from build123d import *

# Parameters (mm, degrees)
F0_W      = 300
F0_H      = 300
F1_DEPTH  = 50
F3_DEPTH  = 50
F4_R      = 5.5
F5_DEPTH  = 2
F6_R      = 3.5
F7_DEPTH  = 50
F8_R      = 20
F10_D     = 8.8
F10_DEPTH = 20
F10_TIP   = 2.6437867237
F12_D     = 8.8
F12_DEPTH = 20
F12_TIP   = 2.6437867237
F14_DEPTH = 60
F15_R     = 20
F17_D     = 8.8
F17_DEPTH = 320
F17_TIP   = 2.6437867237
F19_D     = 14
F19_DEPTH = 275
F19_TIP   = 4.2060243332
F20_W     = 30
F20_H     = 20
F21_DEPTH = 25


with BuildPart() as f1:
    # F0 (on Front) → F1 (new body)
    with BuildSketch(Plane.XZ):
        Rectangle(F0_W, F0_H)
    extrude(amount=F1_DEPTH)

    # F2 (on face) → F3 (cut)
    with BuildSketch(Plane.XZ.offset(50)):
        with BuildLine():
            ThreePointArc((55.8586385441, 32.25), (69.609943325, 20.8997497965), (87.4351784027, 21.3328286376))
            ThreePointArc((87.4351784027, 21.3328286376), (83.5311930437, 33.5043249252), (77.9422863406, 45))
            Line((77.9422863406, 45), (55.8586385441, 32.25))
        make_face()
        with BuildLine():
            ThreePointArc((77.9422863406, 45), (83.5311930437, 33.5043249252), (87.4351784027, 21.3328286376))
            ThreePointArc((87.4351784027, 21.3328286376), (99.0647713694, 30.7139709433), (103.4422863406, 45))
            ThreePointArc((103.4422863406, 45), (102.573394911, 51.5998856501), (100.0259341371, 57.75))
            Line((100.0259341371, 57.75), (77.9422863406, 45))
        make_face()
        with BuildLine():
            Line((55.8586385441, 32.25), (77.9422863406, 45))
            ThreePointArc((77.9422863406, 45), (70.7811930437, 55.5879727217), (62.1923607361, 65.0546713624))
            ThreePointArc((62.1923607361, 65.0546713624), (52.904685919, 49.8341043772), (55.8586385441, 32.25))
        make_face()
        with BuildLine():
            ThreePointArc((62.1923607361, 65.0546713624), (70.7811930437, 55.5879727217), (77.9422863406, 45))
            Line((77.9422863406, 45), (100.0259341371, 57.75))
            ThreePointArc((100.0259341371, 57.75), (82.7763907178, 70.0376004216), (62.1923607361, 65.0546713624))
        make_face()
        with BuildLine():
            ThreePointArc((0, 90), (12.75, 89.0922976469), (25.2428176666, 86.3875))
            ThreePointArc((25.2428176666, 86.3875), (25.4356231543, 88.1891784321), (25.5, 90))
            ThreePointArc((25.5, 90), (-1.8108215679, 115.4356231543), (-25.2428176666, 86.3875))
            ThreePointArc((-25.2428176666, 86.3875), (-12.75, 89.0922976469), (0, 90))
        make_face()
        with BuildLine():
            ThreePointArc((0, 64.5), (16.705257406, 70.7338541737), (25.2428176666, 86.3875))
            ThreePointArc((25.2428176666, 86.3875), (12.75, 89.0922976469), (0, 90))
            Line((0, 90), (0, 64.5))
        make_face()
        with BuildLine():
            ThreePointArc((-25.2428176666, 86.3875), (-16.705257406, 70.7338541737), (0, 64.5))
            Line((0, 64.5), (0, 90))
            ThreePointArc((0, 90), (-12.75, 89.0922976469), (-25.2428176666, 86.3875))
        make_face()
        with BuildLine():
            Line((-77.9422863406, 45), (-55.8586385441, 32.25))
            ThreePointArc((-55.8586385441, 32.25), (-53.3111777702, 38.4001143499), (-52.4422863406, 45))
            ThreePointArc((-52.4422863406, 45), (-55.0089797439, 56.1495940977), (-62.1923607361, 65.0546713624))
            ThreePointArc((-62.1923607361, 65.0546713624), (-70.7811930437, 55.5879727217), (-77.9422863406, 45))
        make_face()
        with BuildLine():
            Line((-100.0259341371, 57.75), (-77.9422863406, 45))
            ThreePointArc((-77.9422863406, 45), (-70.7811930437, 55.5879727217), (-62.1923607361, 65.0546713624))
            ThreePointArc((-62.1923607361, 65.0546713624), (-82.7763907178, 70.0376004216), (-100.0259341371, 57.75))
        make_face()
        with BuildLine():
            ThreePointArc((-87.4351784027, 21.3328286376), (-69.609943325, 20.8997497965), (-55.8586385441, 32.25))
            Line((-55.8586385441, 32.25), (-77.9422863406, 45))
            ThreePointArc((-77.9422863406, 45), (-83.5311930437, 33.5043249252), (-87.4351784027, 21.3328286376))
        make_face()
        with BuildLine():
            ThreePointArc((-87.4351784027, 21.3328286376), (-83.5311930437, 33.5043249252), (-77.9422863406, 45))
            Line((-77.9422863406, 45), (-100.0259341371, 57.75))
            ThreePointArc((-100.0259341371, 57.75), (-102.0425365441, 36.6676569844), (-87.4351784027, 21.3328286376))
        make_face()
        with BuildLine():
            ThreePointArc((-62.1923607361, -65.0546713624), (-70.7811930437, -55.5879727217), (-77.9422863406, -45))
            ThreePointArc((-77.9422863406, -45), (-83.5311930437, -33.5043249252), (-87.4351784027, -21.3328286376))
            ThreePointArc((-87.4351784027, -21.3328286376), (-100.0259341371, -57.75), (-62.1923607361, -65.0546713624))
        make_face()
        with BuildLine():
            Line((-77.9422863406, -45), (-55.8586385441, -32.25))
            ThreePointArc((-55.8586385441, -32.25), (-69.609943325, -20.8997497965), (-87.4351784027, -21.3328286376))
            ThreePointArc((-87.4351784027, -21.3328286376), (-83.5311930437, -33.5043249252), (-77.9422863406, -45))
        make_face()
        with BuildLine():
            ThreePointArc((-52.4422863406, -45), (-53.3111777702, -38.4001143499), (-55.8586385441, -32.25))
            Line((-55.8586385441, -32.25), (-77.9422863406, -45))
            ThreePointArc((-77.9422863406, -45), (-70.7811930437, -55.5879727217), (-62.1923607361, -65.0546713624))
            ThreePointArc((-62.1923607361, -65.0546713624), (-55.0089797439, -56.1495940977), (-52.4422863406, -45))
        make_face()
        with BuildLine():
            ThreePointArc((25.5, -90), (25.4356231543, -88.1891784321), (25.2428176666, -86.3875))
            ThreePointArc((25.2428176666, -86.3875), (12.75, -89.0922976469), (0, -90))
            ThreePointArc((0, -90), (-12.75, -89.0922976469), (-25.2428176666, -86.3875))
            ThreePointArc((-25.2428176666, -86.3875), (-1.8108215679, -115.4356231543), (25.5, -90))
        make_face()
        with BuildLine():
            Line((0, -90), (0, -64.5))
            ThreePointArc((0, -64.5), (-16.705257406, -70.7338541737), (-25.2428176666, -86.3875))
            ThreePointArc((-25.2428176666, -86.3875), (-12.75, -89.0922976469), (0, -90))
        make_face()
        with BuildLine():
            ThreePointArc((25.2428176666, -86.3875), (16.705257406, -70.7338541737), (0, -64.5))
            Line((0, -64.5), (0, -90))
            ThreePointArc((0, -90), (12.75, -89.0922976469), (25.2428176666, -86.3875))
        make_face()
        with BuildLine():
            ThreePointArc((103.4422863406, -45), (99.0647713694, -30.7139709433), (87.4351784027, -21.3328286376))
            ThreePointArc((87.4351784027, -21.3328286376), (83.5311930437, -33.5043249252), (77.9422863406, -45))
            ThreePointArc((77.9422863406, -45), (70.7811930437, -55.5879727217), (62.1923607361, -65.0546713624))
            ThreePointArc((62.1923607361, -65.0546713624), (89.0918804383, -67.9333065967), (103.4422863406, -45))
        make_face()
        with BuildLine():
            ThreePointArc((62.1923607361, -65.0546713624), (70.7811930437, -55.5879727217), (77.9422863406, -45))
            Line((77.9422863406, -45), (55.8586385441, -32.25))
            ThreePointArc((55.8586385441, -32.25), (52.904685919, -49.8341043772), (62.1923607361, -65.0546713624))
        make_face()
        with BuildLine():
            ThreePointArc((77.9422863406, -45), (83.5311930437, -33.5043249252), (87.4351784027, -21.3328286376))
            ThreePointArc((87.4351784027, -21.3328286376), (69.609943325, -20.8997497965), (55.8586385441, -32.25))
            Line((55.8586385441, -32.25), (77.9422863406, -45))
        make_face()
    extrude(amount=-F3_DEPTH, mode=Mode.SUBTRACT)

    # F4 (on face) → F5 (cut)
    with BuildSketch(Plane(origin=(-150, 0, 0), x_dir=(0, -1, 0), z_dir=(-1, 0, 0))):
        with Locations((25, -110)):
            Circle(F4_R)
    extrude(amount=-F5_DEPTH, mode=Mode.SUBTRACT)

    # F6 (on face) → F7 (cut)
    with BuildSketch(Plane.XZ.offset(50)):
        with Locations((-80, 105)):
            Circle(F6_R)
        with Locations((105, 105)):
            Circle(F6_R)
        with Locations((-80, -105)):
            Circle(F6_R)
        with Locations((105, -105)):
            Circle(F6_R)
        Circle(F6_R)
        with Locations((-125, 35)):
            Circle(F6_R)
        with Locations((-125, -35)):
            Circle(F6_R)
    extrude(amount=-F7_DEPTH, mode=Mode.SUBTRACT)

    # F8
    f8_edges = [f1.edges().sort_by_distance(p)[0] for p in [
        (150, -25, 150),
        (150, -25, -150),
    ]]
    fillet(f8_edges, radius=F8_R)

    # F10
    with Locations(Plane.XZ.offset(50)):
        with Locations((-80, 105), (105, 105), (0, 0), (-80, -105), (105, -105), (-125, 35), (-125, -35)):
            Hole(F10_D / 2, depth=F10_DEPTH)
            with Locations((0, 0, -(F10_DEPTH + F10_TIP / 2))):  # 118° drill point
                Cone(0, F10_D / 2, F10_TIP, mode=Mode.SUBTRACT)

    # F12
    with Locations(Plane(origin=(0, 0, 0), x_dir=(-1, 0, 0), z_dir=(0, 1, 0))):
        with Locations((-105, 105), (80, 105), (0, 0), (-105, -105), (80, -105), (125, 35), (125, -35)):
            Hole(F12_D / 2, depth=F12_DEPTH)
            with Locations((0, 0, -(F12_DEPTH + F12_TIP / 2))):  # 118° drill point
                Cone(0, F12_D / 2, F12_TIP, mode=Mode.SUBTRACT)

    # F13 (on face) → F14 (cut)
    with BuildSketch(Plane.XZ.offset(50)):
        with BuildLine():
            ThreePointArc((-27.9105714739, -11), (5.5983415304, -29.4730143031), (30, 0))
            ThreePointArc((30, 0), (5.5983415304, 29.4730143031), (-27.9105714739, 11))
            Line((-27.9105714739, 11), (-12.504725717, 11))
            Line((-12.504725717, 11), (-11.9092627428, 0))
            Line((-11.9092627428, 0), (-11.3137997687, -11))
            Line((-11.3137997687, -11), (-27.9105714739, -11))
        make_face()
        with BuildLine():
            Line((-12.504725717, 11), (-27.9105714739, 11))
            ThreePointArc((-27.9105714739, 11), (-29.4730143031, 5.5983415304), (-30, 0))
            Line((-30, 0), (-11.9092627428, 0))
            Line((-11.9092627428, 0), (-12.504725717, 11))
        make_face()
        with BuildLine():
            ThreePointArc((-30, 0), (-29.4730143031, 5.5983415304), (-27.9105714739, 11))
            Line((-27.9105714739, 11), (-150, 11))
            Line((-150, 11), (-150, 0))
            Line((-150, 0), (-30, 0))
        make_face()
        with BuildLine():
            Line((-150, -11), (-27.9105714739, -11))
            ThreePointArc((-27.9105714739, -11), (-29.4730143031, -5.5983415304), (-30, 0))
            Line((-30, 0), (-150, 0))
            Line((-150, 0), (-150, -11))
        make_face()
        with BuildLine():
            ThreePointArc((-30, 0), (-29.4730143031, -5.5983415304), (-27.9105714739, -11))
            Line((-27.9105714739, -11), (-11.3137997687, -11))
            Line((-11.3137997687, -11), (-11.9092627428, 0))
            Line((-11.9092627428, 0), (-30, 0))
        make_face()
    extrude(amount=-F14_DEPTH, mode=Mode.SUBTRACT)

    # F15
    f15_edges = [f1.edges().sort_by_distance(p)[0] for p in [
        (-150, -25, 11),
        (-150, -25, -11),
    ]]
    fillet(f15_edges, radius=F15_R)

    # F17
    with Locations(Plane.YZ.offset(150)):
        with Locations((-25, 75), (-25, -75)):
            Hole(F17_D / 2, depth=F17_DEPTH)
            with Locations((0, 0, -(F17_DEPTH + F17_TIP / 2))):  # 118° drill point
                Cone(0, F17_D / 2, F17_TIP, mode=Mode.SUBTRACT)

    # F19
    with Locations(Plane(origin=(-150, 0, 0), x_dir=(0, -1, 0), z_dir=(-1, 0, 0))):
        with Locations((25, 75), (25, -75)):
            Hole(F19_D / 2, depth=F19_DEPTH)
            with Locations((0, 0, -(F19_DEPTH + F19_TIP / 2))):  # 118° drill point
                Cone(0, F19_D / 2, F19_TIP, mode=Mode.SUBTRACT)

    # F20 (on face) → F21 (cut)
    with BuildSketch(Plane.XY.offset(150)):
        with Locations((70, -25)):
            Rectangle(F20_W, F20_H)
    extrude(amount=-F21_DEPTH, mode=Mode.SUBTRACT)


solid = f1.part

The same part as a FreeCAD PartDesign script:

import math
import FreeCAD as App
import Part
import Sketcher


def edges_at(feature, points):
    """Names of the edges that pass closest to the given points."""
    edges = feature.Shape.Edges
    near = lambda p: min(range(len(edges)), key=lambda i: edges[i].distToShape(Part.Vertex(*p))[0])
    return sorted({f"Edge{near(p) + 1}" for p in points})

doc = App.newDocument("Part")
body = doc.addObject("PartDesign::Body", "Body")

sketch1 = body.newObject("Sketcher::SketchObject", "Sketch")
sketch1.AttachmentSupport = (doc.getObject("XZ_Plane"), [""])
sketch1.MapMode = "FlatFace"
sketch1.addGeometry(Part.LineSegment(App.Vector(-150, 150, 0), App.Vector(-150, -150, 0)), False)
sketch1.addGeometry(Part.LineSegment(App.Vector(-150, -150, 0), App.Vector(150, -150, 0)), False)
sketch1.addGeometry(Part.LineSegment(App.Vector(150, -150, 0), App.Vector(150, 150, 0)), False)
sketch1.addGeometry(Part.LineSegment(App.Vector(150, 150, 0), App.Vector(-150, 150, 0)), False)
sketch1.addConstraint(Sketcher.Constraint("Coincident", 0, 2, 1, 1))
sketch1.addConstraint(Sketcher.Constraint("Coincident", 1, 2, 2, 1))
sketch1.addConstraint(Sketcher.Constraint("Coincident", 2, 2, 3, 1))
sketch1.addConstraint(Sketcher.Constraint("Coincident", 3, 2, 0, 1))
sketch1.addConstraint(Sketcher.Constraint("Vertical", 0))
sketch1.addConstraint(Sketcher.Constraint("Horizontal", 1))
sketch1.addConstraint(Sketcher.Constraint("Vertical", 2))
sketch1.addConstraint(Sketcher.Constraint("Horizontal", 3))
sketch1.addConstraint(Sketcher.Constraint("Symmetric", 0, 2, 2, 2, -1, 1))
sketch1.addConstraint(Sketcher.Constraint("Equal", 3, 0))
sketch1.addConstraint(Sketcher.Constraint("DistanceX", 1, 1, 1, 2, 300.0))
pad1 = body.newObject("PartDesign::Pad", "Pad")
pad1.Profile = sketch1
pad1.Length = 50

sketch2 = body.newObject("Sketcher::SketchObject", "Sketch001")
sketch2.AttachmentSupport = (doc.getObject("XZ_Plane"), [""])
sketch2.MapMode = "FlatFace"
sketch2.AttachmentOffset = App.Placement(App.Vector(0, 0, 50), App.Rotation())
sketch2.addGeometry(Part.ArcOfCircle(Part.Circle(App.Vector(77.9, 45, 0), App.Vector(0, 0, 1), 25.5), math.radians(-150), math.radians(-68)), False)
sketch2.addGeometry(Part.ArcOfCircle(Part.Circle(App.Vector(77.9, 45, 0), App.Vector(0, 0, 1), 25.5), math.radians(-68), math.radians(0)), False)
sketch2.addGeometry(Part.ArcOfCircle(Part.Circle(App.Vector(77.9, 45, 0), App.Vector(0, 0, 1), 25.5), math.radians(0), math.radians(30)), False)
sketch2.addGeometry(Part.ArcOfCircle(Part.Circle(App.Vector(77.9, 45, 0), App.Vector(0, 0, 1), 25.5), math.radians(30), math.radians(128)), False)
sketch2.addGeometry(Part.ArcOfCircle(Part.Circle(App.Vector(77.9, 45, 0), App.Vector(0, 0, 1), 25.5), math.radians(128), math.radians(210)), False)
sketch2.addGeometry(Part.ArcOfCircle(Part.Circle(App.Vector(0, 90, 0), App.Vector(0, 0, 1), 25.5), math.radians(-8.14), math.radians(0)), False)
sketch2.addGeometry(Part.ArcOfCircle(Part.Circle(App.Vector(0, 90, 0), App.Vector(0, 0, 1), 25.5), math.radians(0), math.radians(188)), False)
sketch2.addGeometry(Part.ArcOfCircle(Part.Circle(App.Vector(0, 90, 0), App.Vector(0, 0, 1), 25.5), math.radians(-172), math.radians(-90)), False)
sketch2.addGeometry(Part.ArcOfCircle(Part.Circle(App.Vector(0, 90, 0), App.Vector(0, 0, 1), 25.5), math.radians(-90), math.radians(-8)), False)
sketch2.addGeometry(Part.ArcOfCircle(Part.Circle(App.Vector(-77.9, 45, 0), App.Vector(0, 0, 1), 25.5), math.radians(-30), math.radians(0)), False)
sketch2.addGeometry(Part.ArcOfCircle(Part.Circle(App.Vector(-77.9, 45, 0), App.Vector(0, 0, 1), 25.5), math.radians(0), math.radians(52)), False)
sketch2.addGeometry(Part.ArcOfCircle(Part.Circle(App.Vector(-77.9, 45, 0), App.Vector(0, 0, 1), 25.5), math.radians(52), math.radians(150)), False)
sketch2.addGeometry(Part.ArcOfCircle(Part.Circle(App.Vector(-77.9, 45, 0), App.Vector(0, 0, 1), 25.5), math.radians(150), math.radians(248)), False)
sketch2.addGeometry(Part.ArcOfCircle(Part.Circle(App.Vector(-77.9, 45, 0), App.Vector(0, 0, 1), 25.5), math.radians(-112), math.radians(-30)), False)
sketch2.addGeometry(Part.ArcOfCircle(Part.Circle(App.Vector(-77.9, -45, 0), App.Vector(0, 0, 1), 25.5), math.radians(30), math.radians(112)), False)
sketch2.addGeometry(Part.ArcOfCircle(Part.Circle(App.Vector(-77.9, -45, 0), App.Vector(0, 0, 1), 25.5), math.radians(112), math.radians(308)), False)
sketch2.addGeometry(Part.ArcOfCircle(Part.Circle(App.Vector(-77.9, -45, 0), App.Vector(0, 0, 1), 25.5), math.radians(-52), math.radians(0)), False)
sketch2.addGeometry(Part.ArcOfCircle(Part.Circle(App.Vector(-77.9, -45, 0), App.Vector(0, 0, 1), 25.5), math.radians(0), math.radians(30)), False)
sketch2.addGeometry(Part.ArcOfCircle(Part.Circle(App.Vector(0, -90, 0), App.Vector(0, 0, 1), 25.5), math.radians(0), math.radians(8.14)), False)
sketch2.addGeometry(Part.ArcOfCircle(Part.Circle(App.Vector(0, -90, 0), App.Vector(0, 0, 1), 25.5), math.radians(8), math.radians(90)), False)
sketch2.addGeometry(Part.ArcOfCircle(Part.Circle(App.Vector(0, -90, 0), App.Vector(0, 0, 1), 25.5), math.radians(90), math.radians(172)), False)
sketch2.addGeometry(Part.ArcOfCircle(Part.Circle(App.Vector(0, -90, 0), App.Vector(0, 0, 1), 25.5), math.radians(172), math.radians(360)), False)
sketch2.addGeometry(Part.ArcOfCircle(Part.Circle(App.Vector(77.9, -45, 0), App.Vector(0, 0, 1), 25.5), math.radians(0), math.radians(68)), False)
sketch2.addGeometry(Part.ArcOfCircle(Part.Circle(App.Vector(77.9, -45, 0), App.Vector(0, 0, 1), 25.5), math.radians(68), math.radians(150)), False)
sketch2.addGeometry(Part.ArcOfCircle(Part.Circle(App.Vector(77.9, -45, 0), App.Vector(0, 0, 1), 25.5), math.radians(150), math.radians(232)), False)
sketch2.addGeometry(Part.ArcOfCircle(Part.Circle(App.Vector(77.9, -45, 0), App.Vector(0, 0, 1), 25.5), math.radians(-128), math.radians(0)), False)
sketch2.addConstraint(Sketcher.Constraint("Tangent", 0, 2, 1, 1))
sketch2.addConstraint(Sketcher.Constraint("Tangent", 1, 2, 2, 1))
sketch2.addConstraint(Sketcher.Constraint("Tangent", 2, 2, 3, 1))
sketch2.addConstraint(Sketcher.Constraint("Tangent", 3, 2, 4, 1))
sketch2.addConstraint(Sketcher.Constraint("Tangent", 4, 2, 0, 1))
sketch2.addConstraint(Sketcher.Constraint("Tangent", 5, 2, 6, 1))
sketch2.addConstraint(Sketcher.Constraint("Tangent", 6, 2, 7, 1))
sketch2.addConstraint(Sketcher.Constraint("Tangent", 7, 2, 8, 1))
sketch2.addConstraint(Sketcher.Constraint("Tangent", 8, 2, 5, 1))
sketch2.addConstraint(Sketcher.Constraint("Tangent", 9, 2, 10, 1))
sketch2.addConstraint(Sketcher.Constraint("Tangent", 10, 2, 11, 1))
sketch2.addConstraint(Sketcher.Constraint("Tangent", 11, 2, 12, 1))
sketch2.addConstraint(Sketcher.Constraint("Tangent", 12, 2, 13, 1))
sketch2.addConstraint(Sketcher.Constraint("Tangent", 13, 2, 9, 1))
sketch2.addConstraint(Sketcher.Constraint("Tangent", 14, 2, 15, 1))
sketch2.addConstraint(Sketcher.Constraint("Tangent", 15, 2, 16, 1))
sketch2.addConstraint(Sketcher.Constraint("Tangent", 16, 2, 17, 1))
sketch2.addConstraint(Sketcher.Constraint("Tangent", 17, 2, 14, 1))
sketch2.addConstraint(Sketcher.Constraint("Tangent", 18, 2, 19, 1))
sketch2.addConstraint(Sketcher.Constraint("Tangent", 19, 2, 20, 1))
sketch2.addConstraint(Sketcher.Constraint("Tangent", 20, 2, 21, 1))
sketch2.addConstraint(Sketcher.Constraint("Tangent", 21, 2, 18, 1))
sketch2.addConstraint(Sketcher.Constraint("Tangent", 22, 2, 23, 1))
sketch2.addConstraint(Sketcher.Constraint("Tangent", 23, 2, 24, 1))
sketch2.addConstraint(Sketcher.Constraint("Tangent", 24, 2, 25, 1))
sketch2.addConstraint(Sketcher.Constraint("Tangent", 25, 2, 22, 1))
sketch2.addConstraint(Sketcher.Constraint("Coincident", 2, 3, 0, 3))
sketch2.addConstraint(Sketcher.Constraint("Coincident", 11, 3, 9, 3))
sketch2.addConstraint(Sketcher.Constraint("Equal", 4, 5))
sketch2.addConstraint(Sketcher.Constraint("Equal", 5, 6))
sketch2.addConstraint(Sketcher.Constraint("Equal", 8, 9))
sketch2.addConstraint(Sketcher.Constraint("Equal", 13, 14))
sketch2.addConstraint(Sketcher.Constraint("Equal", 14, 15))
sketch2.addConstraint(Sketcher.Constraint("Equal", 17, 18))
sketch2.addConstraint(Sketcher.Constraint("Equal", 18, 19))
sketch2.addConstraint(Sketcher.Constraint("Equal", 21, 22))
sketch2.addConstraint(Sketcher.Constraint("Equal", 22, 23))
sketch2.addConstraint(Sketcher.Constraint("Symmetric", 0, 3, 14, 3, -1, 1))
sketch2.addConstraint(Sketcher.Constraint("Symmetric", 5, 3, 18, 3, -1, 1))
sketch2.addConstraint(Sketcher.Constraint("Symmetric", 9, 3, 22, 3, -1, 1))
sketch2.addConstraint(Sketcher.Constraint("Symmetric", 0, 3, 9, 3, -2))
sketch2.addConstraint(Sketcher.Constraint("Symmetric", 6, 2, 8, 2, -2))
sketch2.addConstraint(Sketcher.Constraint("PointOnObject", 7, 2, -2))
sketch2.addConstraint(Sketcher.Constraint("PointOnObject", 19, 2, -2))
sketch2.addConstraint(Sketcher.Constraint("Horizontal", 13, 3, 1, 2))
sketch2.addConstraint(Sketcher.Constraint("Horizontal", 8, 3, 5, 2))
sketch2.addConstraint(Sketcher.Constraint("Horizontal", 1, 2, 9, 2))
sketch2.addConstraint(Sketcher.Constraint("Horizontal", 3, 2, 10, 2))
sketch2.addConstraint(Sketcher.Constraint("Horizontal", 2, 2, 11, 2))
sketch2.addConstraint(Sketcher.Constraint("Horizontal", 0, 2, 12, 2))
sketch2.addConstraint(Sketcher.Constraint("Horizontal", 4, 2, 13, 2))
sketch2.addConstraint(Sketcher.Constraint("Horizontal", 25, 3, 16, 2))
sketch2.addConstraint(Sketcher.Constraint("Horizontal", 18, 2, 20, 2))
sketch2.addConstraint(Sketcher.Constraint("Horizontal", 20, 3, 21, 2))
sketch2.addConstraint(Sketcher.Constraint("Horizontal", 14, 2, 22, 2))
sketch2.addConstraint(Sketcher.Constraint("Horizontal", 17, 2, 23, 2))
sketch2.addConstraint(Sketcher.Constraint("Horizontal", 15, 2, 24, 2))
sketch2.addConstraint(Sketcher.Constraint("Horizontal", 16, 2, 25, 2))
sketch2.addConstraint(Sketcher.Constraint("Vertical", 12, 2, 14, 2))
sketch2.addConstraint(Sketcher.Constraint("Vertical", 10, 2, 15, 2))
sketch2.addConstraint(Sketcher.Constraint("Vertical", 13, 2, 17, 2))
sketch2.addConstraint(Sketcher.Constraint("Vertical", 8, 2, 18, 2))
sketch2.addConstraint(Sketcher.Constraint("Radius", 0, 25.5))
sketch2.addConstraint(Sketcher.Constraint("DistanceY", -1, 1, 0, 3, 45.0))
sketch2.addConstraint(Sketcher.Constraint("DistanceY", -1, 1, 5, 3, 90.0))
sketch2.addConstraint(Sketcher.Constraint("DistanceY", -1, 1, 2, 2, 57.75))
sketch2.addConstraint(Sketcher.Constraint("DistanceY", -1, 1, 4, 2, 32.25))
sketch2.addConstraint(Sketcher.Constraint("DistanceY", -1, 1, 6, 2, 86.3875))
sketch2.addConstraint(Sketcher.Constraint("DistanceX", -1, 1, 0, 2, 87.435178))
sketch2.addConstraint(Sketcher.Constraint("DistanceY", -1, 1, 0, 2, 21.332829))
sketch2.addConstraint(Sketcher.Constraint("DistanceX", -1, 1, 3, 2, 62.192361))
pocket1 = body.newObject("PartDesign::Pocket", "Pocket")
pocket1.Profile = sketch2
pocket1.Length = 50

sketch3 = body.newObject("Sketcher::SketchObject", "Sketch002")
sketch3.AttachmentSupport = (doc.getObject("YZ_Plane"), [""])
sketch3.MapMode = "FlatFace"
sketch3.AttachmentOffset = App.Placement(App.Vector(0, 0, -150), App.Rotation())
sketch3.addGeometry(Part.Circle(App.Vector(-25, -110, 0), App.Vector(0, 0, 1), 6), False)
sketch3.addConstraint(Sketcher.Constraint("Diameter", 0, 11.0))
sketch3.addConstraint(Sketcher.Constraint("DistanceX", 0, 3, -1, 1, 25.0))
sketch3.addConstraint(Sketcher.Constraint("DistanceY", 0, 3, -1, 1, 110.0))
pocket2 = body.newObject("PartDesign::Pocket", "Pocket001")
pocket2.Profile = sketch3
pocket2.Length = 2
pocket2.Reversed = True

sketch4 = body.newObject("Sketcher::SketchObject", "Sketch003")
sketch4.AttachmentSupport = (doc.getObject("XZ_Plane"), [""])
sketch4.MapMode = "FlatFace"
sketch4.AttachmentOffset = App.Placement(App.Vector(0, 0, 50), App.Rotation())
sketch4.addGeometry(Part.Circle(App.Vector(-80, 105, 0), App.Vector(0, 0, 1), 3.5), False)
sketch4.addGeometry(Part.Circle(App.Vector(105, 105, 0), App.Vector(0, 0, 1), 3.5), False)
sketch4.addGeometry(Part.Circle(App.Vector(-80, -105, 0), App.Vector(0, 0, 1), 3.5), False)
sketch4.addGeometry(Part.Circle(App.Vector(105, -105, 0), App.Vector(0, 0, 1), 3.5), False)
sketch4.addGeometry(Part.Circle(App.Vector(0, 0, 0), App.Vector(0, 0, 1), 3.5), False)
sketch4.addGeometry(Part.Circle(App.Vector(-125, 35, 0), App.Vector(0, 0, 1), 3.5), False)
sketch4.addGeometry(Part.Circle(App.Vector(-125, -35, 0), App.Vector(0, 0, 1), 3.5), False)
sketch4.addConstraint(Sketcher.Constraint("Coincident", 4, 3, -1, 1))
sketch4.addConstraint(Sketcher.Constraint("Equal", 0, 1))
sketch4.addConstraint(Sketcher.Constraint("Equal", 1, 2))
sketch4.addConstraint(Sketcher.Constraint("Equal", 2, 3))
sketch4.addConstraint(Sketcher.Constraint("Equal", 3, 4))
sketch4.addConstraint(Sketcher.Constraint("Equal", 4, 5))
sketch4.addConstraint(Sketcher.Constraint("Equal", 5, 6))
sketch4.addConstraint(Sketcher.Constraint("Symmetric", 0, 3, 2, 3, -1))
sketch4.addConstraint(Sketcher.Constraint("Symmetric", 1, 3, 3, 3, -1))
sketch4.addConstraint(Sketcher.Constraint("Symmetric", 5, 3, 6, 3, -1))
sketch4.addConstraint(Sketcher.Constraint("Horizontal", 0, 3, 1, 3))
sketch4.addConstraint(Sketcher.Constraint("Diameter", 0, 7.0))
sketch4.addConstraint(Sketcher.Constraint("DistanceX", 0, 3, -1, 1, 80.0))
sketch4.addConstraint(Sketcher.Constraint("DistanceY", -1, 1, 0, 3, 105.0))
sketch4.addConstraint(Sketcher.Constraint("DistanceX", -1, 1, 1, 3, 105.0))
sketch4.addConstraint(Sketcher.Constraint("DistanceX", 5, 3, -1, 1, 125.0))
sketch4.addConstraint(Sketcher.Constraint("DistanceY", -1, 1, 5, 3, 35.0))
pocket3 = body.newObject("PartDesign::Pocket", "Pocket002")
pocket3.Profile = sketch4
pocket3.Length = 50
doc.recompute()

fillet = body.newObject("PartDesign::Fillet", "Fillet")
fillet.Base = (pocket3, edges_at(pocket3, [(150, -25, 150), (150, -25, -150)]))
fillet.Radius = 20

sketch5 = body.newObject("Sketcher::SketchObject", "Sketch004")
sketch5.AttachmentSupport = (doc.getObject("XZ_Plane"), [""])
sketch5.MapMode = "FlatFace"
sketch5.AttachmentOffset = App.Placement(App.Vector(0, 0, 50), App.Rotation())
sketch5.addGeometry(Part.Circle(App.Vector(-80, 105, 0), App.Vector(0, 0, 1), 4.4), False)
sketch5.addGeometry(Part.Circle(App.Vector(105, 105, 0), App.Vector(0, 0, 1), 4.4), False)
sketch5.addGeometry(Part.Circle(App.Vector(0, 0, 0), App.Vector(0, 0, 1), 4.4), False)
sketch5.addGeometry(Part.Circle(App.Vector(-80, -105, 0), App.Vector(0, 0, 1), 4.4), False)
sketch5.addGeometry(Part.Circle(App.Vector(105, -105, 0), App.Vector(0, 0, 1), 4.4), False)
sketch5.addGeometry(Part.Circle(App.Vector(-125, 35, 0), App.Vector(0, 0, 1), 4.4), False)
sketch5.addGeometry(Part.Circle(App.Vector(-125, -35, 0), App.Vector(0, 0, 1), 4.4), False)
sketch5.addConstraint(Sketcher.Constraint("Coincident", 2, 3, -1, 1))
sketch5.addConstraint(Sketcher.Constraint("Equal", 0, 1))
sketch5.addConstraint(Sketcher.Constraint("Equal", 1, 2))
sketch5.addConstraint(Sketcher.Constraint("Equal", 2, 3))
sketch5.addConstraint(Sketcher.Constraint("Equal", 3, 4))
sketch5.addConstraint(Sketcher.Constraint("Equal", 4, 5))
sketch5.addConstraint(Sketcher.Constraint("Equal", 5, 6))
sketch5.addConstraint(Sketcher.Constraint("Symmetric", 0, 3, 3, 3, -1))
sketch5.addConstraint(Sketcher.Constraint("Symmetric", 1, 3, 4, 3, -1))
sketch5.addConstraint(Sketcher.Constraint("Symmetric", 5, 3, 6, 3, -1))
sketch5.addConstraint(Sketcher.Constraint("Horizontal", 0, 3, 1, 3))
sketch5.addConstraint(Sketcher.Constraint("Diameter", 0, 8.8))
sketch5.addConstraint(Sketcher.Constraint("DistanceX", 0, 3, -1, 1, 80.0))
sketch5.addConstraint(Sketcher.Constraint("DistanceY", -1, 1, 0, 3, 105.0))
sketch5.addConstraint(Sketcher.Constraint("DistanceX", -1, 1, 1, 3, 105.0))
sketch5.addConstraint(Sketcher.Constraint("DistanceX", 5, 3, -1, 1, 125.0))
sketch5.addConstraint(Sketcher.Constraint("DistanceY", -1, 1, 5, 3, 35.0))
doc.recompute()
hole = body.newObject("PartDesign::Hole", "Hole")
hole.Profile = sketch5
hole.ThreadType = "None"
hole.Diameter = 8.8
hole.DepthType = "Dimension"
hole.Depth = 20
hole.DrillPoint = "Angled"
hole.DrillPointAngle = 118

sketch6 = body.newObject("Sketcher::SketchObject", "Sketch005")
sketch6.AttachmentSupport = (doc.getObject("XZ_Plane"), [""])
sketch6.MapMode = "FlatFace"
sketch6.addGeometry(Part.Circle(App.Vector(105, 105, 0), App.Vector(0, 0, 1), 4.4), False)
sketch6.addGeometry(Part.Circle(App.Vector(-80, 105, 0), App.Vector(0, 0, 1), 4.4), False)
sketch6.addGeometry(Part.Circle(App.Vector(0, 0, 0), App.Vector(0, 0, 1), 4.4), False)
sketch6.addGeometry(Part.Circle(App.Vector(105, -105, 0), App.Vector(0, 0, 1), 4.4), False)
sketch6.addGeometry(Part.Circle(App.Vector(-80, -105, 0), App.Vector(0, 0, 1), 4.4), False)
sketch6.addGeometry(Part.Circle(App.Vector(-125, 35, 0), App.Vector(0, 0, 1), 4.4), False)
sketch6.addGeometry(Part.Circle(App.Vector(-125, -35, 0), App.Vector(0, 0, 1), 4.4), False)
sketch6.addConstraint(Sketcher.Constraint("Coincident", 2, 3, -1, 1))
sketch6.addConstraint(Sketcher.Constraint("Equal", 0, 1))
sketch6.addConstraint(Sketcher.Constraint("Equal", 1, 2))
sketch6.addConstraint(Sketcher.Constraint("Equal", 2, 3))
sketch6.addConstraint(Sketcher.Constraint("Equal", 3, 4))
sketch6.addConstraint(Sketcher.Constraint("Equal", 4, 5))
sketch6.addConstraint(Sketcher.Constraint("Equal", 5, 6))
sketch6.addConstraint(Sketcher.Constraint("Symmetric", 0, 3, 3, 3, -1))
sketch6.addConstraint(Sketcher.Constraint("Symmetric", 1, 3, 4, 3, -1))
sketch6.addConstraint(Sketcher.Constraint("Symmetric", 5, 3, 6, 3, -1))
sketch6.addConstraint(Sketcher.Constraint("Horizontal", 0, 3, 1, 3))
sketch6.addConstraint(Sketcher.Constraint("Diameter", 0, 8.8))
sketch6.addConstraint(Sketcher.Constraint("DistanceX", -1, 1, 0, 3, 105.0))
sketch6.addConstraint(Sketcher.Constraint("DistanceY", -1, 1, 0, 3, 105.0))
sketch6.addConstraint(Sketcher.Constraint("DistanceX", 1, 3, -1, 1, 80.0))
sketch6.addConstraint(Sketcher.Constraint("DistanceX", 5, 3, -1, 1, 125.0))
sketch6.addConstraint(Sketcher.Constraint("DistanceY", -1, 1, 5, 3, 35.0))
doc.recompute()
hole2 = body.newObject("PartDesign::Hole", "Hole001")
hole2.Profile = sketch6
hole2.ThreadType = "None"
hole2.Diameter = 8.8
hole2.DepthType = "Dimension"
hole2.Depth = 20
hole2.DrillPoint = "Angled"
hole2.DrillPointAngle = 118
hole2.Reversed = True

sketch7 = body.newObject("Sketcher::SketchObject", "Sketch006")
sketch7.AttachmentSupport = (doc.getObject("XZ_Plane"), [""])
sketch7.MapMode = "FlatFace"
sketch7.AttachmentOffset = App.Placement(App.Vector(0, 0, 50), App.Rotation())
sketch7.addGeometry(Part.LineSegment(App.Vector(-150, -11, 0), App.Vector(-28, -11, 0)), False)
sketch7.addGeometry(Part.ArcOfCircle(Part.Circle(App.Vector(0, 0, 0), App.Vector(0, 0, 1), 30), math.radians(-158), math.radians(0)), False)
sketch7.addGeometry(Part.ArcOfCircle(Part.Circle(App.Vector(0, 0, 0), App.Vector(0, 0, 1), 30), math.radians(0), math.radians(158)), False)
sketch7.addGeometry(Part.LineSegment(App.Vector(-28, 11, 0), App.Vector(-150, 11, 0)), False)
sketch7.addGeometry(Part.LineSegment(App.Vector(-150, 11, 0), App.Vector(-150, -11, 0)), False)
sketch7.addConstraint(Sketcher.Constraint("Coincident", 0, 2, 1, 1))
sketch7.addConstraint(Sketcher.Constraint("Tangent", 1, 2, 2, 1))
sketch7.addConstraint(Sketcher.Constraint("Coincident", 2, 2, 3, 1))
sketch7.addConstraint(Sketcher.Constraint("Coincident", 3, 2, 4, 1))
sketch7.addConstraint(Sketcher.Constraint("Coincident", 4, 2, 0, 1))
sketch7.addConstraint(Sketcher.Constraint("Horizontal", 0))
sketch7.addConstraint(Sketcher.Constraint("Horizontal", 3))
sketch7.addConstraint(Sketcher.Constraint("Vertical", 4))
sketch7.addConstraint(Sketcher.Constraint("Coincident", 1, 3, -1, 1))
sketch7.addConstraint(Sketcher.Constraint("Equal", 1, 2))
sketch7.addConstraint(Sketcher.Constraint("PointOnObject", 1, 2, -1))
sketch7.addConstraint(Sketcher.Constraint("Vertical", 0, 2, 2, 2))
sketch7.addConstraint(Sketcher.Constraint("Radius", 1, 30.0))
sketch7.addConstraint(Sketcher.Constraint("DistanceY", 4, 2, 4, 1, 22.0))
sketch7.addConstraint(Sketcher.Constraint("DistanceX", 3, 2, -1, 1, 150.0))
pocket4 = body.newObject("PartDesign::Pocket", "Pocket003")
pocket4.Profile = sketch7
pocket4.Length = 60
doc.recompute()

fillet2 = body.newObject("PartDesign::Fillet", "Fillet001")
fillet2.Base = (pocket4, edges_at(pocket4, [(-150, -25, 11), (-150, -25, -11)]))
fillet2.Radius = 20

sketch8 = body.newObject("Sketcher::SketchObject", "Sketch007")
sketch8.AttachmentSupport = (doc.getObject("YZ_Plane"), [""])
sketch8.MapMode = "FlatFace"
sketch8.AttachmentOffset = App.Placement(App.Vector(0, 0, 150), App.Rotation())
sketch8.addGeometry(Part.Circle(App.Vector(-25, 75, 0), App.Vector(0, 0, 1), 4.4), False)
sketch8.addGeometry(Part.Circle(App.Vector(-25, -75, 0), App.Vector(0, 0, 1), 4.4), False)
sketch8.addConstraint(Sketcher.Constraint("Equal", 0, 1))
sketch8.addConstraint(Sketcher.Constraint("Symmetric", 0, 3, 1, 3, -1))
sketch8.addConstraint(Sketcher.Constraint("Diameter", 0, 8.8))
sketch8.addConstraint(Sketcher.Constraint("DistanceX", 0, 3, -1, 1, 25.0))
sketch8.addConstraint(Sketcher.Constraint("DistanceY", -1, 1, 0, 3, 75.0))
doc.recompute()
hole3 = body.newObject("PartDesign::Hole", "Hole002")
hole3.Profile = sketch8
hole3.ThreadType = "None"
hole3.Diameter = 8.8
hole3.DepthType = "Dimension"
hole3.Depth = 320
hole3.DrillPoint = "Angled"
hole3.DrillPointAngle = 118

sketch9 = body.newObject("Sketcher::SketchObject", "Sketch008")
sketch9.AttachmentSupport = (doc.getObject("YZ_Plane"), [""])
sketch9.MapMode = "FlatFace"
sketch9.AttachmentOffset = App.Placement(App.Vector(0, 0, -150), App.Rotation())
sketch9.addGeometry(Part.Circle(App.Vector(-25, 75, 0), App.Vector(0, 0, 1), 7), False)
sketch9.addGeometry(Part.Circle(App.Vector(-25, -75, 0), App.Vector(0, 0, 1), 7), False)
sketch9.addConstraint(Sketcher.Constraint("Equal", 0, 1))
sketch9.addConstraint(Sketcher.Constraint("Symmetric", 0, 3, 1, 3, -1))
sketch9.addConstraint(Sketcher.Constraint("Diameter", 0, 14.0))
sketch9.addConstraint(Sketcher.Constraint("DistanceX", 0, 3, -1, 1, 25.0))
sketch9.addConstraint(Sketcher.Constraint("DistanceY", -1, 1, 0, 3, 75.0))
doc.recompute()
hole4 = body.newObject("PartDesign::Hole", "Hole003")
hole4.Profile = sketch9
hole4.ThreadType = "None"
hole4.Diameter = 14
hole4.DepthType = "Dimension"
hole4.Depth = 275
hole4.DrillPoint = "Angled"
hole4.DrillPointAngle = 118
hole4.Reversed = True

sketch10 = body.newObject("Sketcher::SketchObject", "Sketch009")
sketch10.AttachmentSupport = (doc.getObject("XY_Plane"), [""])
sketch10.MapMode = "FlatFace"
sketch10.AttachmentOffset = App.Placement(App.Vector(0, 0, 150), App.Rotation())
sketch10.addGeometry(Part.LineSegment(App.Vector(55, -15, 0), App.Vector(55, -35, 0)), False)
sketch10.addGeometry(Part.LineSegment(App.Vector(55, -35, 0), App.Vector(85, -35, 0)), False)
sketch10.addGeometry(Part.LineSegment(App.Vector(85, -35, 0), App.Vector(85, -15, 0)), False)
sketch10.addGeometry(Part.LineSegment(App.Vector(85, -15, 0), App.Vector(55, -15, 0)), False)
sketch10.addConstraint(Sketcher.Constraint("Coincident", 0, 2, 1, 1))
sketch10.addConstraint(Sketcher.Constraint("Coincident", 1, 2, 2, 1))
sketch10.addConstraint(Sketcher.Constraint("Coincident", 2, 2, 3, 1))
sketch10.addConstraint(Sketcher.Constraint("Coincident", 3, 2, 0, 1))
sketch10.addConstraint(Sketcher.Constraint("Vertical", 0))
sketch10.addConstraint(Sketcher.Constraint("Horizontal", 1))
sketch10.addConstraint(Sketcher.Constraint("Vertical", 2))
sketch10.addConstraint(Sketcher.Constraint("Horizontal", 3))
sketch10.addConstraint(Sketcher.Constraint("DistanceX", 1, 1, 1, 2, 30.0))
sketch10.addConstraint(Sketcher.Constraint("DistanceY", 0, 2, 0, 1, 20.0))
sketch10.addConstraint(Sketcher.Constraint("DistanceX", -1, 1, 0, 2, 55.0))
sketch10.addConstraint(Sketcher.Constraint("DistanceY", 0, 2, -1, 1, 35.0))
pocket5 = body.newObject("PartDesign::Pocket", "Pocket004")
pocket5.Profile = sketch10
pocket5.Length = 25

doc.recompute()
